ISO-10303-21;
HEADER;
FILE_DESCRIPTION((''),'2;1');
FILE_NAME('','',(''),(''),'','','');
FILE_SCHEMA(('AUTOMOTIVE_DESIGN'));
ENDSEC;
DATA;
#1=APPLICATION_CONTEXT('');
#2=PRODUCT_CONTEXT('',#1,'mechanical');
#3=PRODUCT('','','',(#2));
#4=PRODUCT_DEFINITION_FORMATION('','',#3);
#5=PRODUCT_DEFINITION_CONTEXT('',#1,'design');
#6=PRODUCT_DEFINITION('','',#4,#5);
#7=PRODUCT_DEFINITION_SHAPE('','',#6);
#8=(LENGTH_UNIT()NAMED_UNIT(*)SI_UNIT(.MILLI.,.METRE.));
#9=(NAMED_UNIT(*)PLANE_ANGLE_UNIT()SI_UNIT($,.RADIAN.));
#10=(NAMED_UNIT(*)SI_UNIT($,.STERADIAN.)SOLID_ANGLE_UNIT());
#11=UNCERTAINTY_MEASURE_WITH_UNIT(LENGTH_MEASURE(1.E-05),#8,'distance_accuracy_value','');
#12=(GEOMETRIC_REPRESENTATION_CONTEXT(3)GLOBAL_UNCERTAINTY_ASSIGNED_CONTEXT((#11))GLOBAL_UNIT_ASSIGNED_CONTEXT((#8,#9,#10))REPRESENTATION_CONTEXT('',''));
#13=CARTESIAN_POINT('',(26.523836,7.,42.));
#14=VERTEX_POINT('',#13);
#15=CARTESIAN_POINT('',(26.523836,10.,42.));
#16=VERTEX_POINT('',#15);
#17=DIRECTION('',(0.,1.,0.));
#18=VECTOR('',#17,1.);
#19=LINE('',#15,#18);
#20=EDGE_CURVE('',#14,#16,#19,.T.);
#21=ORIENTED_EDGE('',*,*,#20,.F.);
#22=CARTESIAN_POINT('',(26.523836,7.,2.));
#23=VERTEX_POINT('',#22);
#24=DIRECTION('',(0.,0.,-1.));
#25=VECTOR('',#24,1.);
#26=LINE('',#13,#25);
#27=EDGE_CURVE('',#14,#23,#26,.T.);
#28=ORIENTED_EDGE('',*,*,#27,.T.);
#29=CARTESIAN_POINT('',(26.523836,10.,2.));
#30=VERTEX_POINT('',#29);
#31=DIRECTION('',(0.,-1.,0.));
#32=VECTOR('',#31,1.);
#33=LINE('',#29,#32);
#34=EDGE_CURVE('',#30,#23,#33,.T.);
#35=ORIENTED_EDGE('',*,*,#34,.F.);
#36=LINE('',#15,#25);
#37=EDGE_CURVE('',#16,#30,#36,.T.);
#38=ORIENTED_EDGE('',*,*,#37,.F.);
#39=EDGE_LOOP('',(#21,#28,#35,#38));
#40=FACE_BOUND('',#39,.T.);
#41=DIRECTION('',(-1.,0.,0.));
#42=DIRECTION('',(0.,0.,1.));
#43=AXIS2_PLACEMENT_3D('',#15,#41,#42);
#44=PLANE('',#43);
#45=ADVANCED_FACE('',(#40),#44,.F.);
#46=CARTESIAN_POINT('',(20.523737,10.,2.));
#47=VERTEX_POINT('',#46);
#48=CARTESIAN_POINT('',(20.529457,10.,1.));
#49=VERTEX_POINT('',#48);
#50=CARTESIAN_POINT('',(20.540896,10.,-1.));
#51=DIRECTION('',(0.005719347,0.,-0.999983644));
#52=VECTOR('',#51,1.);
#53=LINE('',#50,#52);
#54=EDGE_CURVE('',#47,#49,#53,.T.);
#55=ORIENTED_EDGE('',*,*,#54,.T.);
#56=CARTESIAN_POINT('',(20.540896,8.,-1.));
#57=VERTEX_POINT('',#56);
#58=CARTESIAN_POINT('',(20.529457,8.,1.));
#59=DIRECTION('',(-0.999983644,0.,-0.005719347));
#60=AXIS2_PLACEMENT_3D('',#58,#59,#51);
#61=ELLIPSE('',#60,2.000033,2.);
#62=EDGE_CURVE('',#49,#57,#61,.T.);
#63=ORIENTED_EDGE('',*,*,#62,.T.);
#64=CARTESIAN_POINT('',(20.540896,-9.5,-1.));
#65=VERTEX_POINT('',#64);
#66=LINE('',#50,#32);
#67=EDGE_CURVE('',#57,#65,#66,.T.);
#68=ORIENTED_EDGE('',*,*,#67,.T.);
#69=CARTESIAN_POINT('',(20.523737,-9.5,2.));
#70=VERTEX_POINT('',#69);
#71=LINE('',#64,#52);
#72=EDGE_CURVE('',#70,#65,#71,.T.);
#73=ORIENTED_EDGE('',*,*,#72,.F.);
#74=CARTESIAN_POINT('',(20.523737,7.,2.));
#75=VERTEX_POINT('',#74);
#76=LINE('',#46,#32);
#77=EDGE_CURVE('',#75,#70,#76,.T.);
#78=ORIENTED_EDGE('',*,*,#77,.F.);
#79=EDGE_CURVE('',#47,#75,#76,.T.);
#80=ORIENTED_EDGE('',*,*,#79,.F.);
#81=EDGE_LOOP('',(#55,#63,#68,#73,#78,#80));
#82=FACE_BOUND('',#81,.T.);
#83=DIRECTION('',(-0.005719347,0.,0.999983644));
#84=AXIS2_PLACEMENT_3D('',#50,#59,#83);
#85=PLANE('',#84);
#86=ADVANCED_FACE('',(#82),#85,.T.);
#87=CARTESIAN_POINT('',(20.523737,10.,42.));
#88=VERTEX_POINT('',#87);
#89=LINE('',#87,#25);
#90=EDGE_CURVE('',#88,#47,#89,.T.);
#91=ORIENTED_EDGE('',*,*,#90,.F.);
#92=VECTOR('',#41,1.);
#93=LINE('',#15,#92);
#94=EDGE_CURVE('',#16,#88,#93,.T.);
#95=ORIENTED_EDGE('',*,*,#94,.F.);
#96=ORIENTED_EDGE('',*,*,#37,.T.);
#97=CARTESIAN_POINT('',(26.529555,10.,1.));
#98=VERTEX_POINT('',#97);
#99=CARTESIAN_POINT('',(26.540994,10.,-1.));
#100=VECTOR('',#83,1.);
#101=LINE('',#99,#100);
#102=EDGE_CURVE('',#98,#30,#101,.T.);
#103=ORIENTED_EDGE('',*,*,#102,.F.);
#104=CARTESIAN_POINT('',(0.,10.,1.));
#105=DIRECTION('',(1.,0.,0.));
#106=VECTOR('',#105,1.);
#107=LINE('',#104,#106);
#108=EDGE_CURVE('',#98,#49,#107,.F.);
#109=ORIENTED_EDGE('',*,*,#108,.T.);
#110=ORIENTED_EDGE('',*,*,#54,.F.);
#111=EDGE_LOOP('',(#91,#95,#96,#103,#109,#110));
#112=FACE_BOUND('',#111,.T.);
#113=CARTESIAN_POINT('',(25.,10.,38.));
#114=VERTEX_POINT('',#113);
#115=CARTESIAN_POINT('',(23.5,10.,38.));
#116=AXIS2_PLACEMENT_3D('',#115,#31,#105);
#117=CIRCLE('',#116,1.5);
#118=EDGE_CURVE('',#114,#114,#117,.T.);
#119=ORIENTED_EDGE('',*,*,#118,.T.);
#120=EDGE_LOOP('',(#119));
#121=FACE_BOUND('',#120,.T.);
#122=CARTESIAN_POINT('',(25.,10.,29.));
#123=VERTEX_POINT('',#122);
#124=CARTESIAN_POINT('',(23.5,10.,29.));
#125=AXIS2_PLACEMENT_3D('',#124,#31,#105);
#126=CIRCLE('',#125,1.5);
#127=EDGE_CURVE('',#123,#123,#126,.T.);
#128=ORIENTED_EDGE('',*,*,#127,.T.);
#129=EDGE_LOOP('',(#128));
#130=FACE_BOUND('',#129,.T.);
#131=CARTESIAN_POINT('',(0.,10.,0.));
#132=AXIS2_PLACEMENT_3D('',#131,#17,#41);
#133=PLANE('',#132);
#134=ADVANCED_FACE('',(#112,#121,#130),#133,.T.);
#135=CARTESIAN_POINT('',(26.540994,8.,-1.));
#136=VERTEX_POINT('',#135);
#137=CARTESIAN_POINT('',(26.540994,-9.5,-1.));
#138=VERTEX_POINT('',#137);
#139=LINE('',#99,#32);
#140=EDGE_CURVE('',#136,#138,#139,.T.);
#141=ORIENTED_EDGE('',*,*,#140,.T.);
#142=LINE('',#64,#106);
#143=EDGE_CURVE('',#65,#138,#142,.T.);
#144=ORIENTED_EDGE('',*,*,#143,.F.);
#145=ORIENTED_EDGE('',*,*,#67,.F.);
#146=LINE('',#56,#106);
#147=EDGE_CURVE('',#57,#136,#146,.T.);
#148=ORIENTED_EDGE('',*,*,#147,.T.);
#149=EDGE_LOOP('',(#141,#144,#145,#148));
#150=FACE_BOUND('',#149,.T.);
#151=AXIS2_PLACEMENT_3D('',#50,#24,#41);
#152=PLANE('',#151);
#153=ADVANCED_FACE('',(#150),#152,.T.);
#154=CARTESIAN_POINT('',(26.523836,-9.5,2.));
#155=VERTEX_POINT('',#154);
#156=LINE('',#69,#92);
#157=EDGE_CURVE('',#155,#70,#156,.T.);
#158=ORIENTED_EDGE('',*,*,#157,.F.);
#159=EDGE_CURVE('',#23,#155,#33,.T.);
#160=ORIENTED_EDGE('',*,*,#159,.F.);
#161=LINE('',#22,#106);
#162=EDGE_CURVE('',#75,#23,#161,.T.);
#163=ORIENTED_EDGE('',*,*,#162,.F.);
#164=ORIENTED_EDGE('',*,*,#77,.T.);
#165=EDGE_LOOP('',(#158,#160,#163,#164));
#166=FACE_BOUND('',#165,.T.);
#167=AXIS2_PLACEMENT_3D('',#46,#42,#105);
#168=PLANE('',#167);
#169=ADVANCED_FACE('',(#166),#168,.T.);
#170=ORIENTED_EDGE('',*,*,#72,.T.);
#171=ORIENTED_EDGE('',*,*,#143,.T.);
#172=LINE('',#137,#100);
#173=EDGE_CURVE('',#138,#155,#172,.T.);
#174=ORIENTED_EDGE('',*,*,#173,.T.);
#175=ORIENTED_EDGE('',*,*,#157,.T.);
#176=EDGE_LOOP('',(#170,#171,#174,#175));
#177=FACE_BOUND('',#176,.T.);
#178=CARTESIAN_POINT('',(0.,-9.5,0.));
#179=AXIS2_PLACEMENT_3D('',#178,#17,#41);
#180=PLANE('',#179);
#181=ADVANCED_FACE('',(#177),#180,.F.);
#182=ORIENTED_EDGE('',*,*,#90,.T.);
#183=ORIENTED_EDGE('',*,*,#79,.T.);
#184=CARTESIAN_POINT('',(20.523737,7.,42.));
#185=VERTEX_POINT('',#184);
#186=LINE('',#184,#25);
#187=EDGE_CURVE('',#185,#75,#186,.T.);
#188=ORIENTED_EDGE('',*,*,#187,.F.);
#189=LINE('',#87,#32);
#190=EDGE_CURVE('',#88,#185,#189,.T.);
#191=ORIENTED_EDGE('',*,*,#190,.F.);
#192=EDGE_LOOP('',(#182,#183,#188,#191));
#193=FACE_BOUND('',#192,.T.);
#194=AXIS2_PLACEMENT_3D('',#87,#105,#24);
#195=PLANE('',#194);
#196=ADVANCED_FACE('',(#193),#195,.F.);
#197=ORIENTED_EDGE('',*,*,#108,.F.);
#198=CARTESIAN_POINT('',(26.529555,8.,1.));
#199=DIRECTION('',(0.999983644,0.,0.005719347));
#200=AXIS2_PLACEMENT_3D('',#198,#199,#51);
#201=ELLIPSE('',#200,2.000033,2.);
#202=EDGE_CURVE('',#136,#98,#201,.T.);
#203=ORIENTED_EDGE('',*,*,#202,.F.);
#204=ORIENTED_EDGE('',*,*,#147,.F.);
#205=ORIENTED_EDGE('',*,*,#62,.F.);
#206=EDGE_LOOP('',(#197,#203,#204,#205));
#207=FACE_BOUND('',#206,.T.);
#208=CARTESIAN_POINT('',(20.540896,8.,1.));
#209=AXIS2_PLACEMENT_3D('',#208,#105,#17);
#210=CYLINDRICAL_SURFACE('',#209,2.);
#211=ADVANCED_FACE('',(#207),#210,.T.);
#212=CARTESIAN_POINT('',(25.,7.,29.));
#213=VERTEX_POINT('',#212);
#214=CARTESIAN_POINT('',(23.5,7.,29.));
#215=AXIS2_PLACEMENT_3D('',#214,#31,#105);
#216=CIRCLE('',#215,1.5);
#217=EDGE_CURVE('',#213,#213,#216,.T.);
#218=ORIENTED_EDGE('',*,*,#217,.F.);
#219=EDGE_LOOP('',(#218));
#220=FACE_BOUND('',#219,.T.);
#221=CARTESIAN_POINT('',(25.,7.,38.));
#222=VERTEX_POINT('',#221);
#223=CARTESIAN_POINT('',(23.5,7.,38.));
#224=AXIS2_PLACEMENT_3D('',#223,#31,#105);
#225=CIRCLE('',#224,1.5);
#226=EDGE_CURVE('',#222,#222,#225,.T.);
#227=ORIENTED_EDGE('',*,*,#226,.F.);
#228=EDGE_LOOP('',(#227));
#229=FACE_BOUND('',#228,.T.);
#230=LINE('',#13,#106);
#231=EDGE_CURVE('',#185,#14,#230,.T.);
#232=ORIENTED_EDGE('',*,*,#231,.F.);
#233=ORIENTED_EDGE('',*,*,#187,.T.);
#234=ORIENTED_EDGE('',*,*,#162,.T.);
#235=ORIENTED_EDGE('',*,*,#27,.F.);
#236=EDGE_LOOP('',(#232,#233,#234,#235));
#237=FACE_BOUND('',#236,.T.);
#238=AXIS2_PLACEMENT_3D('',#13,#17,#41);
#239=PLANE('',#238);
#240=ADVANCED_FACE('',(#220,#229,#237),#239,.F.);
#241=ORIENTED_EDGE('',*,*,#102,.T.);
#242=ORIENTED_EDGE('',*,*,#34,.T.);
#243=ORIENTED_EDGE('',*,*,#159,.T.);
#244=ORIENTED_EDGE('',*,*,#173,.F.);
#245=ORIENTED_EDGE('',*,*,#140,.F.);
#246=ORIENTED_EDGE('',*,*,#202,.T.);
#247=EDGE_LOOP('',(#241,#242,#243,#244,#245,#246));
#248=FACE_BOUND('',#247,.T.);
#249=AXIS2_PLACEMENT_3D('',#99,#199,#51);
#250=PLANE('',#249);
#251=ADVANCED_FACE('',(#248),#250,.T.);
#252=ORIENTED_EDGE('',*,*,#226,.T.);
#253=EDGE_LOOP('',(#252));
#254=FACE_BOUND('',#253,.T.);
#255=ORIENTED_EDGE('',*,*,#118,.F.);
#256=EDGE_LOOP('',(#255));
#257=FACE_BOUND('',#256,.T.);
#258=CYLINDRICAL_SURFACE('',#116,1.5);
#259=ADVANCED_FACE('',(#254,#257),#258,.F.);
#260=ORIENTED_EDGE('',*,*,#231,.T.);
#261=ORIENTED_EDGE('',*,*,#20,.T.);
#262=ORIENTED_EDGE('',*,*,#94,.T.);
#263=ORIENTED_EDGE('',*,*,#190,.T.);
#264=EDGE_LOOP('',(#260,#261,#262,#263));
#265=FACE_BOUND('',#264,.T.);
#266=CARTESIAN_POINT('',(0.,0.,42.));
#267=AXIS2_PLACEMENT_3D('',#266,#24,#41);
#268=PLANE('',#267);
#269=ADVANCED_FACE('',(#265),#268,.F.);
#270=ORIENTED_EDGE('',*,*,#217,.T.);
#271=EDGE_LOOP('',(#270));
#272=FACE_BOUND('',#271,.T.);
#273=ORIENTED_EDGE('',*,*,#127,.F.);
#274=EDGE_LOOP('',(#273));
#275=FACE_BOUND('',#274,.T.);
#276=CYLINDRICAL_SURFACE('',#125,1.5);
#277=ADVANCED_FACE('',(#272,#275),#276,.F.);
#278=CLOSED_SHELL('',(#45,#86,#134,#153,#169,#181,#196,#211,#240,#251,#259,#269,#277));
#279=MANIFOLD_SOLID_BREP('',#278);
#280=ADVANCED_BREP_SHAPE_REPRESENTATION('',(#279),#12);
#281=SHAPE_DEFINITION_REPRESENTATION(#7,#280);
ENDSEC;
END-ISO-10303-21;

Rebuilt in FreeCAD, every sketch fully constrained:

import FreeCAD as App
import Part
import Sketcher


def edges_at(feature, points):
    """Names of the edges that pass closest to the given points."""
    edges = feature.Shape.Edges
    near = lambda p: min(range(len(edges)), key=lambda i: edges[i].distToShape(Part.Vertex(*p))[0])
    return sorted({f"Edge{near(p) + 1}" for p in points})

doc = App.newDocument("Part")
body = doc.addObject("PartDesign::Body", "Body")

# Sketch on XZ plane
sketch1 = doc.addObject("Sketcher::SketchObject", "Sketch")
body.addObject(sketch1)
sketch1.AttachmentSupport = (doc.XZ_Plane, [""])
sketch1.MapMode = "FlatFace"
sketch1.AttachmentOffset = App.Placement(App.Vector(0, 0, 9.5), App.Rotation())
sketch1.addGeometry(Part.LineSegment(App.Vector(20.540896, -1, 0), App.Vector(26.540994, -1, 0)), False)
sketch1.addGeometry(Part.LineSegment(App.Vector(26.540994, -1, 0), App.Vector(26.523836, 2, 0)), False)
sketch1.addGeometry(Part.LineSegment(App.Vector(26.523836, 2, 0), App.Vector(20.523737, 2, 0)), False)
sketch1.addGeometry(Part.LineSegment(App.Vector(20.523737, 2, 0), App.Vector(20.540896, -1, 0)), False)
sketch1.addConstraint(Sketcher.Constraint("Coincident", 0, 2, 1, 1))
sketch1.addConstraint(Sketcher.Constraint("Coincident", 1, 2, 2, 1))
sketch1.addConstraint(Sketcher.Constraint("Coincident", 2, 2, 3, 1))
sketch1.addConstraint(Sketcher.Constraint("Coincident", 3, 2, 0, 1))
sketch1.addConstraint(Sketcher.Constraint("Horizontal", 0))
sketch1.addConstraint(Sketcher.Constraint("Horizontal", 2))
sketch1.addConstraint(Sketcher.Constraint("Parallel", 1, 3))
sketch1.addConstraint(Sketcher.Constraint("DistanceY", 0, 2, -1, 1, 1.0))
sketch1.addConstraint(Sketcher.Constraint("DistanceY", -1, 1, 1, 2, 2.0))
sketch1.addConstraint(Sketcher.Constraint("DistanceX", 0, 1, 0, 2, 6.000098))
sketch1.addConstraint(Sketcher.Constraint("Distance", 1, 3.000049))
sketch1.addConstraint(Sketcher.Constraint("DistanceX", -1, 1, 0, 2, 26.540994))
pad1 = doc.addObject("PartDesign::Pad", "Pad")
body.addObject(pad1)
pad1.Profile = sketch1
pad1.Length = 19.5
pad1.Reversed = True

# Sketch on XY plane
sketch2 = doc.addObject("Sketcher::SketchObject", "Sketch001")
body.addObject(sketch2)
sketch2.AttachmentSupport = (doc.XY_Plane, [""])
sketch2.MapMode = "FlatFace"
sketch2.AttachmentOffset = App.Placement(App.Vector(0, 0, 2), App.Rotation())
sketch2.addGeometry(Part.LineSegment(App.Vector(20.523737, 10, 0), App.Vector(20.523737, 7, 0)), False)
sketch2.addGeometry(Part.LineSegment(App.Vector(20.523737, 7, 0), App.Vector(26.523836, 7, 0)), False)
sketch2.addGeometry(Part.LineSegment(App.Vector(26.523836, 7, 0), App.Vector(26.523836, 10, 0)), False)
sketch2.addGeometry(Part.LineSegment(App.Vector(26.523836, 10, 0), App.Vector(20.523737, 10, 0)), False)
sketch2.addConstraint(Sketcher.Constraint("Coincident", 0, 2, 1, 1))
sketch2.addConstraint(Sketcher.Constraint("Coincident", 1, 2, 2, 1))
sketch2.addConstraint(Sketcher.Constraint("Coincident", 2, 2, 3, 1))
sketch2.addConstraint(Sketcher.Constraint("Coincident", 3, 2, 0, 1))
sketch2.addConstraint(Sketcher.Constraint("Vertical", 0))
sketch2.addConstraint(Sketcher.Constraint("Horizontal", 1))
sketch2.addConstraint(Sketcher.Constraint("Vertical", 2))
sketch2.addConstraint(Sketcher.Constraint("Horizontal", 3))
sketch2.addConstraint(Sketcher.Constraint("DistanceY", 0, 2, 0, 1, 3.0))
sketch2.addConstraint(Sketcher.Constraint("DistanceY", -1, 1, 0, 2, 7.0))
sketch2.addConstraint(Sketcher.Constraint("DistanceX", 1, 1, 1, 2, 6.000098))
sketch2.addConstraint(Sketcher.Constraint("DistanceX", -1, 1, 0, 2, 20.523737))
pad2 = doc.addObject("PartDesign::Pad", "Pad001")
body.addObject(pad2)
pad2.Profile = sketch2
pad2.Length = 40
doc.recompute()

fillet = doc.addObject("PartDesign::Fillet", "Fillet")
body.addObject(fillet)
fillet.Base = (pad2, edges_at(pad2, [(23.541, 10, -1)]))
fillet.Radius = 2

# Sketch on XZ plane
sketch3 = doc.addObject("Sketcher::SketchObject", "Sketch002")
body.addObject(sketch3)
sketch3.AttachmentSupport = (doc.XZ_Plane, [""])
sketch3.MapMode = "FlatFace"
sketch3.AttachmentOffset = App.Placement(App.Vector(0, 0, -7), App.Rotation())
sketch3.addGeometry(Part.Circle(App.Vector(23.5, 38, 0), App.Vector(0, 0, 1), 1.5), False)
sketch3.addGeometry(Part.Circle(App.Vector(23.5, 29, 0), App.Vector(0, 0, 1), 1.5), False)
sketch3.addConstraint(Sketcher.Constraint("Equal", 0, 1))
sketch3.addConstraint(Sketcher.Constraint("Vertical", 0, 3, 1, 3))
sketch3.addConstraint(Sketcher.Constraint("Diameter", 0, 3.0))
sketch3.addConstraint(Sketcher.Constraint("DistanceY", -1, 1, 0, 3, 38.0))
sketch3.addConstraint(Sketcher.Constraint("DistanceY", -1, 1, 1, 3, 29.0))
sketch3.addConstraint(Sketcher.Constraint("DistanceX", -1, 1, 0, 3, 23.5))
pocket1 = doc.addObject("PartDesign::Pocket", "Pocket")
body.addObject(pocket1)
pocket1.Profile = sketch3
pocket1.Type = "ThroughAll"

doc.recompute()
